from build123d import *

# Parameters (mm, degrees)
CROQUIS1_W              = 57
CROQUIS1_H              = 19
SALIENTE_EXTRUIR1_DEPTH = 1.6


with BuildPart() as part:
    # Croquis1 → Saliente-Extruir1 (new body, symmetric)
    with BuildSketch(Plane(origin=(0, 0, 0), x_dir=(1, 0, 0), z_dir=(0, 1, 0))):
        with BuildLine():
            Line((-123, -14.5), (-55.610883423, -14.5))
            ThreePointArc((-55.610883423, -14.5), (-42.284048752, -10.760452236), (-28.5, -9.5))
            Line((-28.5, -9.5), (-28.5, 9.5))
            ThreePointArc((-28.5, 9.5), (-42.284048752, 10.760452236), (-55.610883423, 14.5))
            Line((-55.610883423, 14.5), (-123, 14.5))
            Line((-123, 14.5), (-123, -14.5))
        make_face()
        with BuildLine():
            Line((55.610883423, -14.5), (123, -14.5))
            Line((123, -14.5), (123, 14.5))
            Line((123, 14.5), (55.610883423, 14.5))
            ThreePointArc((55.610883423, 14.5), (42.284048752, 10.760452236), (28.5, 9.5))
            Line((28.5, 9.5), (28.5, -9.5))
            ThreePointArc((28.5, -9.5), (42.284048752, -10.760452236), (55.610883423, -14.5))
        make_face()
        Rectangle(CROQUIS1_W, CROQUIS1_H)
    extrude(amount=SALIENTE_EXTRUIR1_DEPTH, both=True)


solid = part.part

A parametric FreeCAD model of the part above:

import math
import FreeCAD as App
import Part
import Sketcher

doc = App.newDocument("Part")
params = doc.addObject("Spreadsheet::Sheet", "Params")
for row, (alias, value) in enumerate([
    ("sketch1_radius", "76 mm"),
    ("sketch1_width", "57 mm"),
    ("sketch1_height", "29 mm"),
    ("pad1_length", "3.2 mm"),
], start=1):
    params.set(f"A{row}", alias)
    params.set(f"B{row}", "=" + value)
    params.setAlias(f"B{row}", alias)

body = doc.addObject("PartDesign::Body", "Body")

# Sketch on XZ plane
sketch1 = body.newObject("Sketcher::SketchObject", "Sketch")
sketch1.AttachmentSupport = (doc.getObject("XZ_Plane"), [""])
sketch1.MapMode = "FlatFace"
sketch1.addGeometry(Part.LineSegment(App.Vector(-123, 14, 0), App.Vector(-56, 14, 0)), False)
sketch1.addGeometry(Part.ArcOfCircle(Part.Circle(App.Vector(-28, 86, 0), App.Vector(0, 0, 1), 76), math.radians(-111), math.radians(-90)), False)
sketch1.addGeometry(Part.LineSegment(App.Vector(-28, 10, 0), App.Vector(28, 10, 0)), False)
sketch1.addGeometry(Part.ArcOfCircle(Part.Circle(App.Vector(28, 86, 0), App.Vector(0, 0, 1), 76), math.radians(-90), math.radians(-69)), False)
sketch1.addGeometry(Part.LineSegment(App.Vector(56, 14, 0), App.Vector(123, 14, 0)), False)
sketch1.addGeometry(Part.LineSegment(App.Vector(123, 14, 0), App.Vector(123, -14, 0)), False)
sketch1.addGeometry(Part.LineSegment(App.Vector(123, -14, 0), App.Vector(56, -14, 0)), False)
sketch1.addGeometry(Part.ArcOfCircle(Part.Circle(App.Vector(28, -86, 0), App.Vector(0, 0, 1), 76), math.radians(69), math.radians(90)), False)
sketch1.addGeometry(Part.LineSegment(App.Vector(28, -10, 0), App.Vector(-28, -10, 0)), False)
sketch1.addGeometry(Part.ArcOfCircle(Part.Circle(App.Vector(-28, -86, 0), App.Vector(0, 0, 1), 76), math.radians(90), math.radians(111)), False)
sketch1.addGeometry(Part.LineSegment(App.Vector(-56, -14, 0), App.Vector(-123, -14, 0)), False)
sketch1.addGeometry(Part.LineSegment(App.Vector(-123, -14, 0), App.Vector(-123, 14, 0)), False)
sketch1.addConstraint(Sketcher.Constraint("Coincident", 0, 2, 1, 1))
sketch1.addConstraint(Sketcher.Constraint("Tangent", 1, 2, 2, 1))
sketch1.addConstraint(Sketcher.Constraint("Tangent", 2, 2, 3, 1))
sketch1.addConstraint(Sketcher.Constraint("Coincident", 3, 2, 4, 1))
sketch1.addConstraint(Sketcher.Constraint("Coincident", 4, 2, 5, 1))
sketch1.addConstraint(Sketcher.Constraint("Coincident", 5, 2, 6, 1))
sketch1.addConstraint(Sketcher.Constraint("Coincident", 6, 2, 7, 1))
sketch1.addConstraint(Sketcher.Constraint("Tangent", 7, 2, 8, 1))
sketch1.addConstraint(Sketcher.Constraint("Tangent", 8, 2, 9, 1))
sketch1.addConstraint(Sketcher.Constraint("Coincident", 9, 2, 10, 1))
sketch1.addConstraint(Sketcher.Constraint("Coincident", 10, 2, 11, 1))
sketch1.addConstraint(Sketcher.Constraint("Coincident", 11, 2, 0, 1))
sketch1.addConstraint(Sketcher.Constraint("Horizontal", 0))
sketch1.addConstraint(Sketcher.Constraint("Horizontal", 2))
sketch1.addConstraint(Sketcher.Constraint("Horizontal", 4))
sketch1.addConstraint(Sketcher.Constraint("Vertical", 5))
sketch1.addConstraint(Sketcher.Constraint("Horizontal", 6))
sketch1.addConstraint(Sketcher.Constraint("Horizontal", 8))
sketch1.addConstraint(Sketcher.Constraint("Horizontal", 10))
sketch1.addConstraint(Sketcher.Constraint("Vertical", 11))
sketch1.addConstraint(Sketcher.Constraint("Equal", 1, 3))
sketch1.addConstraint(Sketcher.Constraint("Equal", 3, 7))
sketch1.addConstraint(Sketcher.Constraint("Equal", 7, 9))
sketch1.addConstraint(Sketcher.Constraint("Symmetric", 1, 3, 7, 3, -1, 1))
sketch1.addConstraint(Sketcher.Constraint("Symmetric", 3, 2, 9, 2, -1, 1))
sketch1.addConstraint(Sketcher.Constraint("Symmetric", 5, 2, 11, 2, -1, 1))
sketch1.addConstraint(Sketcher.Constraint("Symmetric", 0, 2, 3, 2, -2))
sketch1.addConstraint(Sketcher.Constraint("Radius", 1, 76.0))
sketch1.addConstraint(Sketcher.Constraint("DistanceX", 2, 1, 2, 2, 57.0))
sketch1.addConstraint(Sketcher.Constraint("DistanceY", 5, 2, 5, 1, 29.0))
sketch1.addConstraint(Sketcher.Constraint("DistanceX", -1, 1, 4, 2, 123.0))
sketch1.addConstraint(Sketcher.Constraint("DistanceY", 7, 3, 3, 3, 171.0))
sketch1.setExpression("Constraints[27]", "Params.sketch1_radius")
sketch1.setExpression("Constraints[28]", "Params.sketch1_width")
sketch1.setExpression("Constraints[29]", "Params.sketch1_height")
pad1 = body.newObject("PartDesign::Pad", "Pad")
pad1.Profile = sketch1
pad1.setExpression("Length", "Params.pad1_length")
pad1.Midplane = True

doc.recompute()
